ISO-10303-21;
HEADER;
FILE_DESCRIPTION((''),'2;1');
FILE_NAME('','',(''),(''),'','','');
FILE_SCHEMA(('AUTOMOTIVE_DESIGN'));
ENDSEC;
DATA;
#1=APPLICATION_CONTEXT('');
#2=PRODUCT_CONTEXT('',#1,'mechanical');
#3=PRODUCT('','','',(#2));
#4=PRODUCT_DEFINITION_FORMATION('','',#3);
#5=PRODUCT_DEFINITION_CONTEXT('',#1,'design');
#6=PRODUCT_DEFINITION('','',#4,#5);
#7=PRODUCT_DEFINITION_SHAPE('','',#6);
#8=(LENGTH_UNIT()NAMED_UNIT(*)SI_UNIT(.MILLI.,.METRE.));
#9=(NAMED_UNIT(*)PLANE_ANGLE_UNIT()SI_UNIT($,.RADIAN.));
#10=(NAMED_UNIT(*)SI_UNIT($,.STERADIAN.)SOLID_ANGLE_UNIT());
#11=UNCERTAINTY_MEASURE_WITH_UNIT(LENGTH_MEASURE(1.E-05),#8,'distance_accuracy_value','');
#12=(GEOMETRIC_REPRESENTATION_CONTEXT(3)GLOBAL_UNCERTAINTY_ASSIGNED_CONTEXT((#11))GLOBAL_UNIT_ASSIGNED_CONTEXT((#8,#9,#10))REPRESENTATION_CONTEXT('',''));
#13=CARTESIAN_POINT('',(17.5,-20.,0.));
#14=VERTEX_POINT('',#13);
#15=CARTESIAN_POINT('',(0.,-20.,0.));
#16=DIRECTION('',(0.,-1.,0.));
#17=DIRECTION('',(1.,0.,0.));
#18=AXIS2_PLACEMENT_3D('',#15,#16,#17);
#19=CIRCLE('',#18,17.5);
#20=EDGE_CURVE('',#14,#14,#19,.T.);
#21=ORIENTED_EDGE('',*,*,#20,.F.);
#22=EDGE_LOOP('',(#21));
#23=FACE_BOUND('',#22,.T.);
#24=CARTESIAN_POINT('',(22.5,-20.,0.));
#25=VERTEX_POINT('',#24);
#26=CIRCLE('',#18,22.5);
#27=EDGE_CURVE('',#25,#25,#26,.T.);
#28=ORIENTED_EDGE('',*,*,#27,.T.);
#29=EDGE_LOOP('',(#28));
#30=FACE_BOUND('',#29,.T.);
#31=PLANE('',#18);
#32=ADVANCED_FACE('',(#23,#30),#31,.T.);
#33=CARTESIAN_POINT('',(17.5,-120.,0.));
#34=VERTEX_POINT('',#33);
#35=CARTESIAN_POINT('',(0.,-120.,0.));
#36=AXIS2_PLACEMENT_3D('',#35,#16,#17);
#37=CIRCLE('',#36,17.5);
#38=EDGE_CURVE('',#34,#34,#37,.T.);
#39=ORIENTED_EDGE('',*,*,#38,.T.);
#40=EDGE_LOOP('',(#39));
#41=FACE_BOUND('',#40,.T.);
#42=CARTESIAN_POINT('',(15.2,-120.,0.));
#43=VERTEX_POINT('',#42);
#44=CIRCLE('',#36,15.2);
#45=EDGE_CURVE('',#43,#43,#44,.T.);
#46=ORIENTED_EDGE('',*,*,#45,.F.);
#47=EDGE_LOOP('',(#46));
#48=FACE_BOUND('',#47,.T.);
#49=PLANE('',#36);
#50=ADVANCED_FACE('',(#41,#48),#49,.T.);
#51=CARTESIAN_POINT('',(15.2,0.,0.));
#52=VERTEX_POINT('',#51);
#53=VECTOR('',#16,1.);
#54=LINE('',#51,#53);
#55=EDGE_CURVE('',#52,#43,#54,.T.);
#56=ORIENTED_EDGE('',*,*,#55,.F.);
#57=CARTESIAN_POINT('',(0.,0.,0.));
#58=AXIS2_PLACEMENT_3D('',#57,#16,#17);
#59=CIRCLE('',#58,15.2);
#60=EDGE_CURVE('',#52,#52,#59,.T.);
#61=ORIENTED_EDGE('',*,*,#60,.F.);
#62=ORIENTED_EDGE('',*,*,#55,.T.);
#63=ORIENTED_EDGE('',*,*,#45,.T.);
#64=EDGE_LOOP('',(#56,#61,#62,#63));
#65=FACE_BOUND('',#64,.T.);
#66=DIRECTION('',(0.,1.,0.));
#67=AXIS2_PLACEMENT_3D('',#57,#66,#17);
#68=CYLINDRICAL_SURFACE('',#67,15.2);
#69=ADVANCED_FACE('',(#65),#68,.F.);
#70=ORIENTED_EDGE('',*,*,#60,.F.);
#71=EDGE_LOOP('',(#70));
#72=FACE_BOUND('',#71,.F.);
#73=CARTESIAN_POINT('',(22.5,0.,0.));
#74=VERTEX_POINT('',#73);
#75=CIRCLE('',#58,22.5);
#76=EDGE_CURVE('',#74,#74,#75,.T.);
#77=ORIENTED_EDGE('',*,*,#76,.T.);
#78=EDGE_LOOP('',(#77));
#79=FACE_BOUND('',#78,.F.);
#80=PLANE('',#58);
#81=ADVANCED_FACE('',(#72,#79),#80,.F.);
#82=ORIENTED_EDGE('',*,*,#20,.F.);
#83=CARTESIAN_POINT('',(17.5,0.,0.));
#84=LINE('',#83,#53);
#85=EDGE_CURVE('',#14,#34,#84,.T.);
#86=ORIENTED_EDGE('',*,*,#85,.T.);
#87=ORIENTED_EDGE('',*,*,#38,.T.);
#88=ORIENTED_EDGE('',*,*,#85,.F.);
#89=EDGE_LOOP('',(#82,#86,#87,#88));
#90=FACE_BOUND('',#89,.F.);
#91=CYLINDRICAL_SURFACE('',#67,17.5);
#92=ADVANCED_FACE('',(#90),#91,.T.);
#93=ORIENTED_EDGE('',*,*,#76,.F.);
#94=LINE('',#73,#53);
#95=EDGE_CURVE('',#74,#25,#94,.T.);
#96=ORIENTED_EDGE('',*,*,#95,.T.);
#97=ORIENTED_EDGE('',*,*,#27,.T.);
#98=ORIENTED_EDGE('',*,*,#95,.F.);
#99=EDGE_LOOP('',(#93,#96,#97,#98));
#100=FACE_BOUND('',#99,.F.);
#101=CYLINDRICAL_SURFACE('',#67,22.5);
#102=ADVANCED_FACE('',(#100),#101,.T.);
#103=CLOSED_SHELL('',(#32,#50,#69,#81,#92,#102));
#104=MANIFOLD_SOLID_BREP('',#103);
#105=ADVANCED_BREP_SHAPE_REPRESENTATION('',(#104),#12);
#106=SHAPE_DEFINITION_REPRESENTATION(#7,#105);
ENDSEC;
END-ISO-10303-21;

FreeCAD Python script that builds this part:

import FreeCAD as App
import Part
import Sketcher

doc = App.newDocument("Part")
body = doc.addObject("PartDesign::Body", "Body")

sketch1 = body.newObject("Sketcher::SketchObject", "Sketch")
sketch1.AttachmentSupport = (doc.getObject("XZ_Plane"), [""])
sketch1.MapMode = "FlatFace"
sketch1.addGeometry([
    Part.Circle(App.Vector(0, 0, 0), App.Vector(0, 0, 1), 22.5),
    Part.Circle(App.Vector(0, 0, 0), App.Vector(0, 0, 1), 17.5),
], False)
sketch1.addConstraint([
    Sketcher.Constraint("Coincident", 0, 3, -1, 1),
    Sketcher.Constraint("Coincident", 1, 3, -1, 1),
    Sketcher.Constraint("Diameter", 0, 45.0),
    Sketcher.Constraint("Diameter", 1, 35.0),
])
pad1 = body.newObject("PartDesign::Pad", "Pad")
pad1.Profile = sketch1
pad1.Length = 20

sketch2 = body.newObject("Sketcher::SketchObject", "Sketch001")
sketch2.AttachmentSupport = (doc.getObject("XZ_Plane"), [""])
sketch2.MapMode = "FlatFace"
sketch2.addGeometry([
    Part.Circle(App.Vector(0, 0, 0), App.Vector(0, 0, 1), 17.5),
    Part.Circle(App.Vector(0, 0, 0), App.Vector(0, 0, 1), 15.2),
], False)
sketch2.addConstraint([
    Sketcher.Constraint("Coincident", 0, 3, -1, 1),
    Sketcher.Constraint("Coincident", 1, 3, -1, 1),
    Sketcher.Constraint("Diameter", 0, 35.0),
    Sketcher.Constraint("Diameter", 1, 30.4),
])
pad2 = body.newObject("PartDesign::Pad", "Pad001")
pad2.Profile = sketch2
pad2.Length = 120

doc.recompute()
